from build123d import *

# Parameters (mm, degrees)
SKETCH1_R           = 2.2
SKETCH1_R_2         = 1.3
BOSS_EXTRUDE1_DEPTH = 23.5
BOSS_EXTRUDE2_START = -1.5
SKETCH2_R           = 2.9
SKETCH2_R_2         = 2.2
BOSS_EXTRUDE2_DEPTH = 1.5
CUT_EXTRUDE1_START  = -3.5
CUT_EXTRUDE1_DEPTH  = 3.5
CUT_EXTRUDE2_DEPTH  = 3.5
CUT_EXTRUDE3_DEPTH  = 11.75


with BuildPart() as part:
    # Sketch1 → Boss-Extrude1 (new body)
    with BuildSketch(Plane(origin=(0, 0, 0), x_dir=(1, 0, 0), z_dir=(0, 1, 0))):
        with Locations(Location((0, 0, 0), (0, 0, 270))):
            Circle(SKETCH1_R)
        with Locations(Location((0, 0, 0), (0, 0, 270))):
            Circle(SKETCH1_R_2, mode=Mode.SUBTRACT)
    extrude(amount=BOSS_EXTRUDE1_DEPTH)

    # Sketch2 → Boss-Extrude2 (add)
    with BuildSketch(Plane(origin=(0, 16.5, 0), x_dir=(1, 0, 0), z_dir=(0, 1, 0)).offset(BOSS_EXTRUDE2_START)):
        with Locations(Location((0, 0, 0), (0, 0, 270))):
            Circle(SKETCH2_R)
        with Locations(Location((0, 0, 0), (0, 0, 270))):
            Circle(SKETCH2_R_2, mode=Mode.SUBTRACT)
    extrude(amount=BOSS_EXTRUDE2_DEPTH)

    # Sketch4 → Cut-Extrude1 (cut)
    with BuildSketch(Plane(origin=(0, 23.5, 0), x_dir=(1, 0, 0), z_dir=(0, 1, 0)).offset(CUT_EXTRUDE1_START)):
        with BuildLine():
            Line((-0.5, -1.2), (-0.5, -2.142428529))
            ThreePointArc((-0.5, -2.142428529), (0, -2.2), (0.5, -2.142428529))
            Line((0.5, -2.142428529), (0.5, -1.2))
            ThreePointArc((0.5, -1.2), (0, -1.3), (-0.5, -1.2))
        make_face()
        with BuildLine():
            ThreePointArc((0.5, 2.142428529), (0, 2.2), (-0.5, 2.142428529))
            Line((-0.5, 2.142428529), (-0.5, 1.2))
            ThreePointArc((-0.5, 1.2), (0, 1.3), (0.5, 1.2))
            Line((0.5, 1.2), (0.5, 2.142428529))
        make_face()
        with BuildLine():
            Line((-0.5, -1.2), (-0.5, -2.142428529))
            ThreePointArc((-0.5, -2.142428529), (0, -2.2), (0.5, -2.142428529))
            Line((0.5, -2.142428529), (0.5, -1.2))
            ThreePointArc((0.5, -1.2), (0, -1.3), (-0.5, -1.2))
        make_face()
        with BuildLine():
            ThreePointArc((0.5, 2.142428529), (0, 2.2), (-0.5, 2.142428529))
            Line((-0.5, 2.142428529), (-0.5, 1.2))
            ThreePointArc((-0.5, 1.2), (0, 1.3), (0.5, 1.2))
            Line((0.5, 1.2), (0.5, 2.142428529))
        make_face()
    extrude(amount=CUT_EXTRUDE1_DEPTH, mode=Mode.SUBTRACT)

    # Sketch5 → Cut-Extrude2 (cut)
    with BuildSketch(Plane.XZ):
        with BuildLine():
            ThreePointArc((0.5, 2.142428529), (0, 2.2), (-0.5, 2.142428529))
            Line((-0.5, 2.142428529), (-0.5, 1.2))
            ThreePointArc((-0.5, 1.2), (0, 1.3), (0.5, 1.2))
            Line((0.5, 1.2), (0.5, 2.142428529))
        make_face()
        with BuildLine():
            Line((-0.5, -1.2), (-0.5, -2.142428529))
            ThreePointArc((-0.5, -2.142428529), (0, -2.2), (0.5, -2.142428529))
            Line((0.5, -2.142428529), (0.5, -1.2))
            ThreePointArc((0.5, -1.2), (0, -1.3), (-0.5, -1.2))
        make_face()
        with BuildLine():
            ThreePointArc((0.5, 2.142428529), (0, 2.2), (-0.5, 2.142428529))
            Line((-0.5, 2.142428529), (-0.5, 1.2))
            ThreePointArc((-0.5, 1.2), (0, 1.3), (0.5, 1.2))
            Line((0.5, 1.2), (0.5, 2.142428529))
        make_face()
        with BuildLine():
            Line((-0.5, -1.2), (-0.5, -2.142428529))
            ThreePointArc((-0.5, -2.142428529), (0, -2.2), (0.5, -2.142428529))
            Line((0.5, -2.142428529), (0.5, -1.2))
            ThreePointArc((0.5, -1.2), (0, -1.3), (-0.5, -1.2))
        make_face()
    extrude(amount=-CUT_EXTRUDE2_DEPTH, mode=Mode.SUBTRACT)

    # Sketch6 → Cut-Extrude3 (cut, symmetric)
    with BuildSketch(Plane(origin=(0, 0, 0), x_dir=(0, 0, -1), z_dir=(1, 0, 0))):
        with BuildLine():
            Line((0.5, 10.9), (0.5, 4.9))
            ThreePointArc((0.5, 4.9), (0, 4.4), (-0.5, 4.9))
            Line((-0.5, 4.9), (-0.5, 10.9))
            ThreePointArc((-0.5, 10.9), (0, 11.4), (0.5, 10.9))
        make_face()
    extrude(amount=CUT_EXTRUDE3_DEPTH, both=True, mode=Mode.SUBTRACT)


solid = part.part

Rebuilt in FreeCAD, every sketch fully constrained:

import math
import FreeCAD as App
import Part
import Sketcher
from FreeCAD import Vector

doc = App.newDocument("Part")
body = doc.addObject("PartDesign::Body", "Body")

# Sketch on XZ plane
sketch1 = body.newObject("Sketcher::SketchObject", "Sketch")
sketch1.AttachmentSupport = (doc.getObject("XZ_Plane"), [""])
sketch1.MapMode = "FlatFace"
sketch1.addGeometry([
    Part.Circle(Vector(0, 0, 0), Vector(0, 0, 1), 2.2),
    Part.Circle(Vector(0, 0, 0), Vector(0, 0, 1), 1.3),
], False)
sketch1.addConstraint([
    Sketcher.Constraint("Coincident", 0, 3, -1, 1),
    Sketcher.Constraint("Coincident", 1, 3, -1, 1),
    Sketcher.Constraint("Diameter", 0, 4.4),
    Sketcher.Constraint("Diameter", 1, 2.6),
])
pad1 = body.newObject("PartDesign::Pad", "Pad")
pad1.Profile = sketch1
pad1.Length = 23.5
pad1.Reversed = True

# Sketch on XZ plane
sketch2 = body.newObject("Sketcher::SketchObject", "Sketch001")
sketch2.AttachmentSupport = (doc.getObject("XZ_Plane"), [""])
sketch2.MapMode = "FlatFace"
sketch2.AttachmentOffset = App.Placement(Vector(0, 0, -15), App.Rotation())
sketch2.addGeometry([
    Part.Circle(Vector(0, 0, 0), Vector(0, 0, 1), 2.9),
    Part.Circle(Vector(0, 0, 0), Vector(0, 0, 1), 2.2),
], False)
sketch2.addConstraint([
    Sketcher.Constraint("Coincident", 0, 3, -1, 1),
    Sketcher.Constraint("Coincident", 1, 3, -1, 1),
    Sketcher.Constraint("Diameter", 0, 5.8),
    Sketcher.Constraint("Diameter", 1, 4.4),
])
pad2 = body.newObject("PartDesign::Pad", "Pad001")
pad2.Profile = sketch2
pad2.Length = 1.5
pad2.Reversed = True

# Sketch on XZ plane
sketch3 = body.newObject("Sketcher::SketchObject", "Sketch002")
sketch3.AttachmentSupport = (doc.getObject("XZ_Plane"), [""])
sketch3.MapMode = "FlatFace"
sketch3.AttachmentOffset = App.Placement(Vector(0, 0, -20), App.Rotation())
sketch3.addGeometry([
    Part.LineSegment(Vector(-0.5, 1.2, 0), Vector(-0.5, 2.1, 0)),  # 0
    Part.ArcOfCircle(Part.Circle(Vector(0, 0, 0), Vector(0, 0, 1), 2.2), math.radians(77), math.radians(103)),  # 1
    Part.LineSegment(Vector(0.5, 2.1, 0), Vector(0.5, 1.2, 0)),  # 2
    Part.ArcOfCircle(Part.Circle(Vector(0, 0, 0), Vector(0, 0, 1), 1.3), math.radians(67), math.radians(113)),  # 3
    Part.ArcOfCircle(Part.Circle(Vector(0, 0, 0), Vector(0, 0, 1), 2.2), math.radians(-103), math.radians(-77)),  # 4
    Part.LineSegment(Vector(-0.5, -2.1, 0), Vector(-0.5, -1.2, 0)),  # 5
    Part.ArcOfCircle(Part.Circle(Vector(0, 0, 0), Vector(0, 0, 1), 1.3), math.radians(-113), math.radians(-67)),  # 6
    Part.LineSegment(Vector(0.5, -1.2, 0), Vector(0.5, -2.1, 0)),  # 7
], False)
sketch3.addConstraint([
    Sketcher.Constraint("Coincident", 0, 2, 1, 2),
    Sketcher.Constraint("Coincident", 1, 1, 2, 1),
    Sketcher.Constraint("Coincident", 2, 2, 3, 1),
    Sketcher.Constraint("Coincident", 3, 2, 0, 1),
    Sketcher.Constraint("Coincident", 4, 1, 5, 1),
    Sketcher.Constraint("Coincident", 5, 2, 6, 1),
    Sketcher.Constraint("Coincident", 6, 2, 7, 1),
    Sketcher.Constraint("Coincident", 7, 2, 4, 2),
    Sketcher.Constraint("Vertical", 0),
    Sketcher.Constraint("Vertical", 2),
    Sketcher.Constraint("Vertical", 5),
    Sketcher.Constraint("Vertical", 7),
    Sketcher.Constraint("Coincident", 1, 3, -1, 1),
    Sketcher.Constraint("Coincident", 3, 3, -1, 1),
    Sketcher.Constraint("Coincident", 4, 3, -1, 1),
    Sketcher.Constraint("Coincident", 6, 3, -1, 1),
    Sketcher.Constraint("Equal", 1, 4),
    Sketcher.Constraint("Equal", 3, 6),
    Sketcher.Constraint("Horizontal", 0, 2, 1, 1),
    Sketcher.Constraint("Horizontal", 5, 2, 6, 2),
    Sketcher.Constraint("Vertical", 3, 2, 4, 1),
    Sketcher.Constraint("Radius", 1, 2.2),
    Sketcher.Constraint("Radius", 3, 1.3),
    Sketcher.Constraint("DistanceX", 0, 2, 1, 1, 1.0),
])
pocket1 = body.newObject("PartDesign::Pocket", "Pocket")
pocket1.Profile = sketch3
pocket1.Length = 3.5

# Sketch on XZ plane
sketch4 = body.newObject("Sketcher::SketchObject", "Sketch003")
sketch4.AttachmentSupport = (doc.getObject("XZ_Plane"), [""])
sketch4.MapMode = "FlatFace"
sketch4.addGeometry([
    Part.ArcOfCircle(Part.Circle(Vector(0, 0, 0), Vector(0, 0, 1), 2.2), math.radians(77), math.radians(103)),  # 0
    Part.LineSegment(Vector(-0.5, 2.1, 0), Vector(-0.5, 1.2, 0)),  # 1
    Part.ArcOfCircle(Part.Circle(Vector(0, 0, 0), Vector(0, 0, 1), 1.3), math.radians(67), math.radians(113)),  # 2
    Part.LineSegment(Vector(0.5, 1.2, 0), Vector(0.5, 2.1, 0)),  # 3
    Part.LineSegment(Vector(-0.5, -1.2, 0), Vector(-0.5, -2.1, 0)),  # 4
    Part.ArcOfCircle(Part.Circle(Vector(0, 0, 0), Vector(0, 0, 1), 2.2), math.radians(-103), math.radians(-77)),  # 5
    Part.LineSegment(Vector(0.5, -2.1, 0), Vector(0.5, -1.2, 0)),  # 6
    Part.ArcOfCircle(Part.Circle(Vector(0, 0, 0), Vector(0, 0, 1), 1.3), math.radians(-113), math.radians(-67)),  # 7
], False)
sketch4.addConstraint([
    Sketcher.Constraint("Coincident", 0, 2, 1, 1),
    Sketcher.Constraint("Coincident", 1, 2, 2, 2),
    Sketcher.Constraint("Coincident", 2, 1, 3, 1),
    Sketcher.Constraint("Coincident", 3, 2, 0, 1),
    Sketcher.Constraint("Coincident", 4, 2, 5, 1),
    Sketcher.Constraint("Coincident", 5, 2, 6, 1),
    Sketcher.Constraint("Coincident", 6, 2, 7, 2),
    Sketcher.Constraint("Coincident", 7, 1, 4, 1),
    Sketcher.Constraint("Vertical", 1),
    Sketcher.Constraint("Vertical", 3),
    Sketcher.Constraint("Vertical", 4),
    Sketcher.Constraint("Vertical", 6),
    Sketcher.Constraint("Coincident", 0, 3, -1, 1),
    Sketcher.Constraint("Coincident", 2, 3, -1, 1),
    Sketcher.Constraint("Coincident", 5, 3, -1, 1),
    Sketcher.Constraint("Coincident", 7, 3, -1, 1),
    Sketcher.Constraint("Equal", 0, 5),
    Sketcher.Constraint("Equal", 2, 7),
    Sketcher.Constraint("Horizontal", 1, 2, 2, 1),
    Sketcher.Constraint("Horizontal", 4, 2, 5, 2),
    Sketcher.Constraint("Vertical", 1, 2, 4, 2),
    Sketcher.Constraint("Radius", 0, 2.2),
    Sketcher.Constraint("Radius", 2, 1.3),
    Sketcher.Constraint("DistanceX", 1, 2, 2, 1, 1.0),
])
pocket2 = body.newObject("PartDesign::Pocket", "Pocket001")
pocket2.Profile = sketch4
pocket2.Length = 3.5

# Sketch on YZ plane
sketch5 = body.newObject("Sketcher::SketchObject", "Sketch004")
sketch5.AttachmentSupport = (doc.getObject("YZ_Plane"), [""])
sketch5.MapMode = "FlatFace"
sketch5.addGeometry([
    Part.LineSegment(Vector(4.9, -0.5, 0), Vector(10.9, -0.5, 0)),
    Part.ArcOfCircle(Part.Circle(Vector(10.9, 0, 0), Vector(0, 0, 1), 0.5), math.radians(-90), math.radians(90)),
    Part.LineSegment(Vector(10.9, 0.5, 0), Vector(4.9, 0.5, 0)),
    Part.ArcOfCircle(Part.Circle(Vector(4.9, 0, 0), Vector(0, 0, 1), 0.5), math.radians(90), math.radians(270)),
], False)
sketch5.addConstraint([
    Sketcher.Constraint("Tangent", 0, 2, 1, 1),
    Sketcher.Constraint("Tangent", 1, 2, 2, 1),
    Sketcher.Constraint("Tangent", 2, 2, 3, 1),
    Sketcher.Constraint("Tangent", 3, 2, 0, 1),
    Sketcher.Constraint("Horizontal", 0),
    Sketcher.Constraint("Horizontal", 2),
    Sketcher.Constraint("PointOnObject", 1, 3, -1),
    Sketcher.Constraint("Radius", 1, 0.5),
    Sketcher.Constraint("DistanceX", 0, 1, 0, 2, 6.0),
    Sketcher.Constraint("DistanceX", -1, 1, 1, 3, 10.9),
])
pocket3 = body.newObject("PartDesign::Pocket", "Pocket002")
pocket3.Profile = sketch5
pocket3.Length = 23.5
pocket3.Midplane = True

doc.recompute()
